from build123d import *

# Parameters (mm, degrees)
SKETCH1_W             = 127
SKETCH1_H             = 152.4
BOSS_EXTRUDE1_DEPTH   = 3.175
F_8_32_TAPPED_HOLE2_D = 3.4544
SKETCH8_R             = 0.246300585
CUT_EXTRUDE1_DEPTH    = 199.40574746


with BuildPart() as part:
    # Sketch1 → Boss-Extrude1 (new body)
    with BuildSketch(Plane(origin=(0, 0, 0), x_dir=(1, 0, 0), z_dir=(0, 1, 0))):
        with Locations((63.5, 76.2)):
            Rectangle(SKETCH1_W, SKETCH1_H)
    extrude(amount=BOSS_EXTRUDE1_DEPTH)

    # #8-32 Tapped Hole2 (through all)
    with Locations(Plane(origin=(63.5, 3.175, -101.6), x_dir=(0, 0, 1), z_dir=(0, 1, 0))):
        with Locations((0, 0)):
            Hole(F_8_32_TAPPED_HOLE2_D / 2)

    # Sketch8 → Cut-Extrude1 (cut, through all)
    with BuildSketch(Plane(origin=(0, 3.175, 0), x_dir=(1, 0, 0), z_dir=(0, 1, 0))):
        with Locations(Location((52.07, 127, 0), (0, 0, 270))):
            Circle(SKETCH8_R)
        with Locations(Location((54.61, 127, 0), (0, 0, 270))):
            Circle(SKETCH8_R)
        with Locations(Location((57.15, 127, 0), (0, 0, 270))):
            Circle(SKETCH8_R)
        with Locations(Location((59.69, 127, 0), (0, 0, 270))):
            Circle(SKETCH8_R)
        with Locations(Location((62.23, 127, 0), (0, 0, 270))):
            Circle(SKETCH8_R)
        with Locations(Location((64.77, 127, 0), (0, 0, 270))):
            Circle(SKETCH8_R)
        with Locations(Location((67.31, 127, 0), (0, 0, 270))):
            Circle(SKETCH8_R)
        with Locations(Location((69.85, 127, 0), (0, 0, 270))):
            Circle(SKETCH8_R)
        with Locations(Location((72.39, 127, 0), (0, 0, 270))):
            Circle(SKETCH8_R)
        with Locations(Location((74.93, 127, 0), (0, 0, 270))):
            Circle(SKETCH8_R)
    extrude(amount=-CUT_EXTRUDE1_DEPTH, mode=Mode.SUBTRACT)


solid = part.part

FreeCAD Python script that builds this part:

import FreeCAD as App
import Part
import Sketcher

V = App.Vector
Q = App.Units.Quantity

doc = App.newDocument("Part")
params = doc.addObject("Spreadsheet::Sheet", "Params")
for row, (alias, value) in enumerate([
    ("sketch1_width", "5 in"),
    ("sketch1_height", "6 in"),
    ("pad1_length", "0.125 in"),
    ("sketch2_diameter", "0.136 in"),
    ("hole_diameter", "0.136 in"),
], start=1):
    params.set(f"A{row}", alias)
    params.set(f"B{row}", "=" + value)
    params.setAlias(f"B{row}", alias)

body = doc.addObject("PartDesign::Body", "Body")

sketch1 = doc.addObject("Sketcher::SketchObject", "Sketch")
body.addObject(sketch1)
sketch1.AttachmentSupport = (doc.XZ_Plane, [""])
sketch1.MapMode = "FlatFace"
sketch1.addGeometry([
    Part.LineSegment(V(0, -152.4, 0), V(0, 0, 0)),
    Part.LineSegment(V(0, 0, 0), V(127, 0, 0)),
    Part.LineSegment(V(127, 0, 0), V(127, -152.4, 0)),
    Part.LineSegment(V(127, -152.4, 0), V(0, -152.4, 0)),
], False)
sketch1.addConstraint([
    Sketcher.Constraint("Coincident", 0, 2, 1, 1),
    Sketcher.Constraint("Coincident", 1, 2, 2, 1),
    Sketcher.Constraint("Coincident", 2, 2, 3, 1),
    Sketcher.Constraint("Coincident", 3, 2, 0, 1),
    Sketcher.Constraint("Vertical", 0),
    Sketcher.Constraint("Horizontal", 1),
    Sketcher.Constraint("Vertical", 2),
    Sketcher.Constraint("Horizontal", 3),
    Sketcher.Constraint("Coincident", 0, 2, -1, 1),
    Sketcher.Constraint("DistanceX", 1, 1, 1, 2, Q("5 in")),
    Sketcher.Constraint("DistanceY", 0, 1, 0, 2, Q("6 in")),
])
sketch1.setExpression("Constraints[9]", "Params.sketch1_width")
sketch1.setExpression("Constraints[10]", "Params.sketch1_height")
pad1 = doc.addObject("PartDesign::Pad", "Pad")
body.addObject(pad1)
pad1.Profile = sketch1
pad1.setExpression("Length", "Params.pad1_length")
pad1.Reversed = True

sketch2 = doc.addObject("Sketcher::SketchObject", "Sketch001")
body.addObject(sketch2)
sketch2.AttachmentSupport = (doc.XZ_Plane, [""])
sketch2.MapMode = "FlatFace"
sketch2.AttachmentOffset = App.Placement(V(0, 0, -0.125 * 25.4), App.Rotation())
sketch2.addGeometry(Part.Circle(V(63.5, -101.6, 0), V(0, 0, 1), 1.7272), False)
sketch2.addConstraint([
    Sketcher.Constraint("Diameter", 0, Q("0.136 in")),
    Sketcher.Constraint("DistanceY", 0, 3, -1, 1, Q("4 in")),
    Sketcher.Constraint("DistanceX", -1, 1, 0, 3, Q("2.5 in")),
])
sketch2.setExpression("Constraints[0]", "Params.sketch2_diameter")
doc.recompute()
hole = doc.addObject("PartDesign::Hole", "Hole")
body.addObject(hole)
hole.Profile = sketch2
hole.ThreadType = "None"
hole.setExpression("Diameter", "Params.hole_diameter")
hole.DepthType = "ThroughAll"
hole.Reversed = True

sketch3 = doc.addObject("Sketcher::SketchObject", "Sketch002")
body.addObject(sketch3)
sketch3.AttachmentSupport = (doc.XZ_Plane, [""])
sketch3.MapMode = "FlatFace"
sketch3.AttachmentOffset = App.Placement(V(0, 0, -0.125 * 25.4), App.Rotation())
sketch3.addGeometry([
    Part.Circle(V(52.07, -127, 0), V(0, 0, 1), 0.246301),
    Part.Circle(V(54.61, -127, 0), V(0, 0, 1), 0.246301),
    Part.Circle(V(57.15, -127, 0), V(0, 0, 1), 0.246301),
    Part.Circle(V(59.69, -127, 0), V(0, 0, 1), 0.246301),
    Part.Circle(V(62.23, -127, 0), V(0, 0, 1), 0.246301),
    Part.Circle(V(64.77, -127, 0), V(0, 0, 1), 0.246301),
    Part.Circle(V(67.31, -127, 0), V(0, 0, 1), 0.246301),
    Part.Circle(V(69.85, -127, 0), V(0, 0, 1), 0.246301),
    Part.Circle(V(72.39, -127, 0), V(0, 0, 1), 0.246301),
    Part.Circle(V(74.93, -127, 0), V(0, 0, 1), 0.246301),
], False)
sketch3.addConstraint([
    Sketcher.Constraint("Equal", 0, 1),
    Sketcher.Constraint("Equal", 1, 2),
    Sketcher.Constraint("Equal", 2, 3),
    Sketcher.Constraint("Equal", 3, 4),
    Sketcher.Constraint("Equal", 4, 5),
    Sketcher.Constraint("Equal", 5, 6),
    Sketcher.Constraint("Equal", 6, 7),
    Sketcher.Constraint("Equal", 7, 8),
    Sketcher.Constraint("Equal", 8, 9),
    Sketcher.Constraint("Horizontal", 0, 3, 1, 3),
    Sketcher.Constraint("Horizontal", 1, 3, 2, 3),
    Sketcher.Constraint("Horizontal", 2, 3, 3, 3),
    Sketcher.Constraint("Horizontal", 3, 3, 4, 3),
    Sketcher.Constraint("Horizontal", 4, 3, 5, 3),
    Sketcher.Constraint("Horizontal", 5, 3, 6, 3),
    Sketcher.Constraint("Horizontal", 6, 3, 7, 3),
    Sketcher.Constraint("Horizontal", 7, 3, 8, 3),
    Sketcher.Constraint("Horizontal", 8, 3, 9, 3),
    Sketcher.Constraint("DistanceY", 0, 3, -1, 1, Q("5 in")),
    Sketcher.Constraint("DistanceX", 0, 3, 1, 3, Q("0.1 in")),
    Sketcher.Constraint("DistanceX", 1, 3, 2, 3, Q("0.1 in")),
    Sketcher.Constraint("DistanceX", 2, 3, 3, 3, Q("0.1 in")),
    Sketcher.Constraint("DistanceX", 3, 3, 4, 3, Q("0.1 in")),
    Sketcher.Constraint("DistanceX", 4, 3, 5, 3, Q("0.1 in")),
    Sketcher.Constraint("DistanceX", 5, 3, 6, 3, Q("0.1 in")),
    Sketcher.Constraint("DistanceX", 6, 3, 7, 3, Q("0.1 in")),
    Sketcher.Constraint("DistanceX", 7, 3, 8, 3, Q("0.1 in")),
    Sketcher.Constraint("DistanceX", 8, 3, 9, 3, Q("0.1 in")),
    Sketcher.Constraint("Diameter", 0, Q("0.492601 mm")),
    Sketcher.Constraint("DistanceX", -1, 1, 0, 3, Q("2.05 in")),
])
pocket1 = doc.addObject("PartDesign::Pocket", "Pocket")
body.addObject(pocket1)
pocket1.Profile = sketch3
pocket1.Type = "ThroughAll"
pocket1.Reversed = True

doc.recompute()
